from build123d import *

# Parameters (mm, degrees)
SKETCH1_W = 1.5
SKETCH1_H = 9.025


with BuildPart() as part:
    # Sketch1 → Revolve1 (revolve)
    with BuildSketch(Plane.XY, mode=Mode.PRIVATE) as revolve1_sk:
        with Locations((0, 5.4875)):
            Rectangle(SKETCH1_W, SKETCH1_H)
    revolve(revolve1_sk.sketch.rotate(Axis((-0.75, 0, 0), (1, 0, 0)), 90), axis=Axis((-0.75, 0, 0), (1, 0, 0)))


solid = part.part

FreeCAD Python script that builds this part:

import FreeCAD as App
import Part
import Sketcher
from FreeCAD import Vector


def add_polygon(sketch, points):
    """Adds a closed chain of lines whose ends are joined by coincident constraints."""
    first, n = sketch.GeometryCount, len(points)
    for a, b in zip(points, points[1:] + points[:1]):
        sketch.addGeometry(Part.LineSegment(App.Vector(*a, 0), App.Vector(*b, 0)), False)
    for i in range(n):
        sketch.addConstraint(Sketcher.Constraint("Coincident", first + i, 2, first + (i + 1) % n, 1))

doc = App.newDocument("Part")
body = doc.addObject("PartDesign::Body", "Body")

sketch1 = body.newObject("Sketcher::SketchObject", "Sketch")
sketch1.AttachmentSupport = (doc.getObject("XY_Plane"), [""])
sketch1.MapMode = "FlatFace"
add_polygon(sketch1, [(-0.8, 10), (-0.8, 1), (0.8, 1), (0.8, 10)])
sketch1.addConstraint(Sketcher.Constraint("Vertical", 0))
sketch1.addConstraint(Sketcher.Constraint("Horizontal", 1))
sketch1.addConstraint(Sketcher.Constraint("Vertical", 2))
sketch1.addConstraint(Sketcher.Constraint("Horizontal", 3))
sketch1.addConstraint(Sketcher.Constraint("DistanceX", 1, 1, 1, 2, 1.5))
sketch1.addConstraint(Sketcher.Constraint("DistanceY", -1, 1, 2, 2, 10.0))
sketch1.addConstraint(Sketcher.Constraint("DistanceY", 0, 2, 0, 1, 9.025))
sketch1.addConstraint(Sketcher.Constraint("DistanceX", 0, 2, -1, 1, 0.75))
revolution = body.newObject("PartDesign::Revolution", "Revolution")
revolution.Profile = sketch1
revolution.ReferenceAxis = (sketch1, ["H_Axis"])
revolution.Angle = 360

doc.recompute()
